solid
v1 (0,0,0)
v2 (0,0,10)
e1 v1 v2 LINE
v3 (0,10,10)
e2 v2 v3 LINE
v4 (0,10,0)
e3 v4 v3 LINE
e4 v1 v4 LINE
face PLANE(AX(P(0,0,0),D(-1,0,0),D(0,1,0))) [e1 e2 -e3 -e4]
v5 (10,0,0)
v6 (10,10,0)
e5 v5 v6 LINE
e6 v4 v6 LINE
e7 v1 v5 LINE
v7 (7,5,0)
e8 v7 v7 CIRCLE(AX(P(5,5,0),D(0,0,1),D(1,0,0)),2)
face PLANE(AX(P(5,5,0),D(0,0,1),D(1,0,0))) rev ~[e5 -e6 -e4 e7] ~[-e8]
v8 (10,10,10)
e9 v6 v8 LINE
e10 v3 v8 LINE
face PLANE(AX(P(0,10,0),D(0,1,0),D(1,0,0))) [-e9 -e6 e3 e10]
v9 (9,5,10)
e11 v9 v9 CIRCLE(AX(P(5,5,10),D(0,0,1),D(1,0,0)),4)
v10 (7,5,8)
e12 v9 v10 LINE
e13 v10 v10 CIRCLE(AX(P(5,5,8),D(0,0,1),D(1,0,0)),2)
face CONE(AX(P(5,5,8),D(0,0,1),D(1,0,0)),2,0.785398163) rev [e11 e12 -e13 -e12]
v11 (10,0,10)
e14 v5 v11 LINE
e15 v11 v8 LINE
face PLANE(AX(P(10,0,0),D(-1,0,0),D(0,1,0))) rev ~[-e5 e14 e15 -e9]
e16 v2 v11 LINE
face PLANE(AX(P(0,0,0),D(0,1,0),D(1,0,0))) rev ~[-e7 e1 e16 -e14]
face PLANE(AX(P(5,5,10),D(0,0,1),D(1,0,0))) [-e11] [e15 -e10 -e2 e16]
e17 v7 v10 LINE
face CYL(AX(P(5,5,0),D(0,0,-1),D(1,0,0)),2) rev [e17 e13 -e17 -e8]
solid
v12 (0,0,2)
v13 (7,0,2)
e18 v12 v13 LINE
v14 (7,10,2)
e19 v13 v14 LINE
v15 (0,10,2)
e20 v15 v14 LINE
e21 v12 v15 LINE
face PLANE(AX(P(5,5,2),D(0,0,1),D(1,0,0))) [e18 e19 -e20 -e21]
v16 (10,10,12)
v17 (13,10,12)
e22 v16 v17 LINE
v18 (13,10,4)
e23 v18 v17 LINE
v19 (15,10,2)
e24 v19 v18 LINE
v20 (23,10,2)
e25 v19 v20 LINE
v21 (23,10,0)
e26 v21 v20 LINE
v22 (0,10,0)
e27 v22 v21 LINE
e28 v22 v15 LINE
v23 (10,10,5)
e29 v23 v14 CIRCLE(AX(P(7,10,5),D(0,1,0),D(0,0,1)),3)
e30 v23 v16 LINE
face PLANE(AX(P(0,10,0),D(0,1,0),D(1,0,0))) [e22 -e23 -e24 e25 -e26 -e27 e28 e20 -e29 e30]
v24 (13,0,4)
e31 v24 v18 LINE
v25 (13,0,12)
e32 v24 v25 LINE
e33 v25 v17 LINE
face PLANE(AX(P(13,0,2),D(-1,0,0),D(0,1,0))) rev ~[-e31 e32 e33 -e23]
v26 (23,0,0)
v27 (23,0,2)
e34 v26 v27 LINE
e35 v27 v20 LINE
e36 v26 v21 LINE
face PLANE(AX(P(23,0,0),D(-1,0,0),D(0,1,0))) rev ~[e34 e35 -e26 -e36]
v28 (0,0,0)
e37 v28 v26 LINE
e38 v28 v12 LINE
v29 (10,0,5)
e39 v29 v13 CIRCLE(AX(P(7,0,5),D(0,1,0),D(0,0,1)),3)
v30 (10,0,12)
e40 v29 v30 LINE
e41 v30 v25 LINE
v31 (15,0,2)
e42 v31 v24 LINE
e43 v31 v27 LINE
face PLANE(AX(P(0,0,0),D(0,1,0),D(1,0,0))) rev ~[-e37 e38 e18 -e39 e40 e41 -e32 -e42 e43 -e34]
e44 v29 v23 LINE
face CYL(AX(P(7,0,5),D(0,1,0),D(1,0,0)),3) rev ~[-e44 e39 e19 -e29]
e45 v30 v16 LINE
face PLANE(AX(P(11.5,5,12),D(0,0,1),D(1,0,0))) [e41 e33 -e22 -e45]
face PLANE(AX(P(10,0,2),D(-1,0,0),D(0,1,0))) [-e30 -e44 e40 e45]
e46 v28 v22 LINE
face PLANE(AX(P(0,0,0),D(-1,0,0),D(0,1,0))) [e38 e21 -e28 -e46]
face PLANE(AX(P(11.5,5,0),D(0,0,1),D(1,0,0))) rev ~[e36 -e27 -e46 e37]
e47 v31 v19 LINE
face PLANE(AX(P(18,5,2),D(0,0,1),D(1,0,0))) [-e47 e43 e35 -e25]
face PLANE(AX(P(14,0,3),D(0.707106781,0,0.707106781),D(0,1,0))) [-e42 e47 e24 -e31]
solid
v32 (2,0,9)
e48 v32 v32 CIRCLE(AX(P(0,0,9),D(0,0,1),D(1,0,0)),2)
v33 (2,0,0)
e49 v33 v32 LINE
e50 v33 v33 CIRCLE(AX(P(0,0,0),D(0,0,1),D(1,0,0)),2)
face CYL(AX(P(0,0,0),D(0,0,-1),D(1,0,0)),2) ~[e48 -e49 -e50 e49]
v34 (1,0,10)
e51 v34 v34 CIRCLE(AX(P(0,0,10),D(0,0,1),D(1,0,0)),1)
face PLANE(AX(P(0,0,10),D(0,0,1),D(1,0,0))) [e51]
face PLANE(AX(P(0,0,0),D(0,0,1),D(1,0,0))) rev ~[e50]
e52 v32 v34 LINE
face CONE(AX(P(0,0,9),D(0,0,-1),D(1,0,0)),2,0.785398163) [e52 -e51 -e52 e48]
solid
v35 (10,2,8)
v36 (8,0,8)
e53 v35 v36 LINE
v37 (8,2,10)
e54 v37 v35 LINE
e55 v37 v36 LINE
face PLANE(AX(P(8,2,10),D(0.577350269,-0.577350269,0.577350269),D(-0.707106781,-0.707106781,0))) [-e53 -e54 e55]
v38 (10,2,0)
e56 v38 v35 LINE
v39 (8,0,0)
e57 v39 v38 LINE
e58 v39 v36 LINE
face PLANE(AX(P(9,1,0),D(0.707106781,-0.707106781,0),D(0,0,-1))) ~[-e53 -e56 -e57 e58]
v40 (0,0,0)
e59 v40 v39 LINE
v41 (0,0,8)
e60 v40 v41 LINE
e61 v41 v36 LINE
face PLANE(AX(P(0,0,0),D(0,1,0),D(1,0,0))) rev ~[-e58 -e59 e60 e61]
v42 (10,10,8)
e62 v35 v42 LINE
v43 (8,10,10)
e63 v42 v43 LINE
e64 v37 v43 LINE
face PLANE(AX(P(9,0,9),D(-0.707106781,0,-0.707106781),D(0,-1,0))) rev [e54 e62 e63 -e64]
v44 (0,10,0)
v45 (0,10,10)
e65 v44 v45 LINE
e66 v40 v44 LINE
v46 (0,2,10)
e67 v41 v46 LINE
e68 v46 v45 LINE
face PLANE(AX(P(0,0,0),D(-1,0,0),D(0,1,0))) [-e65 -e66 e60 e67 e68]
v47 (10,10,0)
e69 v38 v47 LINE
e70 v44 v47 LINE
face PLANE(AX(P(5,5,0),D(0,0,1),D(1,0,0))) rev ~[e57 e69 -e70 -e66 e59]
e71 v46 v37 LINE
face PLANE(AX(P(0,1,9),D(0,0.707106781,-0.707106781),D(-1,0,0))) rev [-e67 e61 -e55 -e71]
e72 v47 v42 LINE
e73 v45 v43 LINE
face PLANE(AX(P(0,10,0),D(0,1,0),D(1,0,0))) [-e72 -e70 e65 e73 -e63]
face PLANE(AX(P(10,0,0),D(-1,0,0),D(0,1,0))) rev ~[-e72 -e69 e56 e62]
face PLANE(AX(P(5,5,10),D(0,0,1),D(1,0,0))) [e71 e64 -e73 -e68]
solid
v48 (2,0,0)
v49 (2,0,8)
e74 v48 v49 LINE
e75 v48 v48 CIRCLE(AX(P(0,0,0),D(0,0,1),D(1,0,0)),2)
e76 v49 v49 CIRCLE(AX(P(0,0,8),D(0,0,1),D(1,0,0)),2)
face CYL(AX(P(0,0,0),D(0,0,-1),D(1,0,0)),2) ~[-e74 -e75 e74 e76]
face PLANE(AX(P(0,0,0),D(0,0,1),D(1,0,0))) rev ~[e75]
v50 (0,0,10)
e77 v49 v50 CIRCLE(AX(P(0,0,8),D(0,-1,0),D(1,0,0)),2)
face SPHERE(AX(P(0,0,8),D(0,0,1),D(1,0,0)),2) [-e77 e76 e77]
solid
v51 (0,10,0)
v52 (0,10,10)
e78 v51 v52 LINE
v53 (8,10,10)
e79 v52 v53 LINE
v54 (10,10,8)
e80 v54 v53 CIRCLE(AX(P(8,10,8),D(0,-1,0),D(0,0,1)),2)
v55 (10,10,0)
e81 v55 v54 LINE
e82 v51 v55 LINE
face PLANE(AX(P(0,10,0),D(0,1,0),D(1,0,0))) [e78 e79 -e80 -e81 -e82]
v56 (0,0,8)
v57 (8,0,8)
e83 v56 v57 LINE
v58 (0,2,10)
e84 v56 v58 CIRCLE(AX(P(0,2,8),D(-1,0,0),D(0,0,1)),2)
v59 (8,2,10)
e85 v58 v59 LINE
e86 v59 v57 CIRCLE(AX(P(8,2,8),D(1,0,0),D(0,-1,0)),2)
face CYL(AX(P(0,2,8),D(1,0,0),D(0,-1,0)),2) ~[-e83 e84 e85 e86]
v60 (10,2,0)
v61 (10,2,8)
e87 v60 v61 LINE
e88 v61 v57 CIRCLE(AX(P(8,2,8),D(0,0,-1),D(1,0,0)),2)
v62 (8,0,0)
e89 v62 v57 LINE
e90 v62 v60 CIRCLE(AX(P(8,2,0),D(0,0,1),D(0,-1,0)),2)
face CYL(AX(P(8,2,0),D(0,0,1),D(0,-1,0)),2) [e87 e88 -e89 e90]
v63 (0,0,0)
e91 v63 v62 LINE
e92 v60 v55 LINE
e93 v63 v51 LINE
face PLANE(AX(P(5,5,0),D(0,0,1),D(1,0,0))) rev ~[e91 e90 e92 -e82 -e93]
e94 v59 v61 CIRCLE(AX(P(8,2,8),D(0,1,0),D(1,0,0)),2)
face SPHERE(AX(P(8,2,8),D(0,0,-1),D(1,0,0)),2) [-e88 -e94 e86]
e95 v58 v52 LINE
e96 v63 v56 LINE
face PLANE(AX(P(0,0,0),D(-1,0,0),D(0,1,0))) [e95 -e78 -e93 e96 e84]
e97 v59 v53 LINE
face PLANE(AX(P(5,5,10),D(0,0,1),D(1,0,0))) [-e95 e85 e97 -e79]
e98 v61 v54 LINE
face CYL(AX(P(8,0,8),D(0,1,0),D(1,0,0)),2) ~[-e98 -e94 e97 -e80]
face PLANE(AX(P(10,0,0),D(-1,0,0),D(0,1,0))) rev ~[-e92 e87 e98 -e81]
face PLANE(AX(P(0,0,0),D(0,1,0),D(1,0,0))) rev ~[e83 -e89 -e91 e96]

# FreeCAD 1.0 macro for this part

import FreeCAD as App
import Part
import Sketcher
from FreeCAD import Vector
Q = App.Units.Quantity


def edges_at(feature, points):
    """Names of the edges that pass closest to the given points."""
    edges = feature.Shape.Edges
    near = lambda p: min(range(len(edges)), key=lambda i: edges[i].distToShape(Part.Vertex(*p))[0])
    return sorted({f"Edge{near(p) + 1}" for p in points})

doc = App.newDocument("Part")
body = doc.addObject("PartDesign::Body", "Body")

# Sketch on XY plane
sketch1 = body.newObject("Sketcher::SketchObject", "Sketch")
sketch1.AttachmentSupport = (doc.getObject("XY_Plane"), [""])
sketch1.MapMode = "FlatFace"
sketch1.addGeometry([
    Part.LineSegment(Vector(0, 10, 0), Vector(0, 0, 0)),
    Part.LineSegment(Vector(0, 0, 0), Vector(10, 0, 0)),
    Part.LineSegment(Vector(10, 0, 0), Vector(10, 10, 0)),
    Part.LineSegment(Vector(10, 10, 0), Vector(0, 10, 0)),
], False)
sketch1.addConstraint([
    Sketcher.Constraint("Coincident", 0, 2, 1, 1),
    Sketcher.Constraint("Coincident", 1, 2, 2, 1),
    Sketcher.Constraint("Coincident", 2, 2, 3, 1),
    Sketcher.Constraint("Coincident", 3, 2, 0, 1),
    Sketcher.Constraint("Vertical", 0),
    Sketcher.Constraint("Horizontal", 1),
    Sketcher.Constraint("Vertical", 2),
    Sketcher.Constraint("Horizontal", 3),
    Sketcher.Constraint("Coincident", 0, 2, -1, 1),
    Sketcher.Constraint("Equal", 3, 0),
    Sketcher.Constraint("DistanceX", 1, 1, 1, 2, Q("10 mm")),
])
pad1 = body.newObject("PartDesign::Pad", "Pad")
pad1.Profile = sketch1
pad1.Length = 10
doc.recompute()

fillet = body.newObject("PartDesign::Fillet", "Fillet")
fillet.Base = (pad1, edges_at(pad1, [(10, 0, 5), (10, 5, 10), (5, 0, 10)]))
fillet.Radius = 2
body2 = doc.addObject("PartDesign::Body", "Body001")

# Sketch on XY plane
sketch2 = body2.newObject("Sketcher::SketchObject", "Sketch001")
sketch2.AttachmentSupport = (doc.getObject("XY_Plane001"), [""])
sketch2.MapMode = "FlatFace"
sketch2.addGeometry([
    Part.LineSegment(Vector(0, 10, 0), Vector(0, 0, 0)),
    Part.LineSegment(Vector(0, 0, 0), Vector(10, 0, 0)),
    Part.LineSegment(Vector(10, 0, 0), Vector(10, 10, 0)),
    Part.LineSegment(Vector(10, 10, 0), Vector(0, 10, 0)),
], False)
sketch2.addConstraint([
    Sketcher.Constraint("Coincident", 0, 2, 1, 1),
    Sketcher.Constraint("Coincident", 1, 2, 2, 1),
    Sketcher.Constraint("Coincident", 2, 2, 3, 1),
    Sketcher.Constraint("Coincident", 3, 2, 0, 1),
    Sketcher.Constraint("Vertical", 0),
    Sketcher.Constraint("Horizontal", 1),
    Sketcher.Constraint("Vertical", 2),
    Sketcher.Constraint("Horizontal", 3),
    Sketcher.Constraint("Coincident", 0, 2, -1, 1),
    Sketcher.Constraint("Equal", 3, 0),
    Sketcher.Constraint("DistanceX", 1, 1, 1, 2, Q("10 mm")),
])
pad2 = body2.newObject("PartDesign::Pad", "Pad001")
pad2.Profile = sketch2
pad2.Length = 10
doc.recompute()

chamfer = body2.newObject("PartDesign::Chamfer", "Chamfer")
chamfer.Base = (pad2, edges_at(pad2, [(10, 0, 5), (10, 5, 10), (5, 0, 10)]))
chamfer.Size = 2
body3 = doc.addObject("PartDesign::Body", "Body002")

# Sketch on XY plane
sketch3 = body3.newObject("Sketcher::SketchObject", "Sketch002")
sketch3.AttachmentSupport = (doc.getObject("XY_Plane002"), [""])
sketch3.MapMode = "FlatFace"
sketch3.addGeometry(Part.Circle(Vector(5, 5, 0), Vector(0, 0, 1), 2), False)
sketch3.addConstraint([
    Sketcher.Constraint("Diameter", 0, Q("4 mm")),
    Sketcher.Constraint("DistanceX", -1, 1, 0, 3, Q("5 mm")),
    Sketcher.Constraint("DistanceY", -1, 1, 0, 3, Q("5 mm")),
])
pad3 = body3.newObject("PartDesign::Pad", "Pad002")
pad3.Profile = sketch3
pad3.Length = 10
body4 = doc.addObject("PartDesign::Body", "Body003")

# Sketch on XY plane
sketch4 = body4.newObject("Sketcher::SketchObject", "Sketch003")
sketch4.AttachmentSupport = (doc.getObject("XY_Plane003"), [""])
sketch4.MapMode = "FlatFace"
sketch4.addGeometry([
    Part.LineSegment(Vector(0, 10, 0), Vector(0, 0, 0)),
    Part.LineSegment(Vector(0, 0, 0), Vector(10, 0, 0)),
    Part.LineSegment(Vector(10, 0, 0), Vector(10, 10, 0)),
    Part.LineSegment(Vector(10, 10, 0), Vector(0, 10, 0)),
], False)
sketch4.addConstraint([
    Sketcher.Constraint("Coincident", 0, 2, 1, 1),
    Sketcher.Constraint("Coincident", 1, 2, 2, 1),
    Sketcher.Constraint("Coincident", 2, 2, 3, 1),
    Sketcher.Constraint("Coincident", 3, 2, 0, 1),
    Sketcher.Constraint("Vertical", 0),
    Sketcher.Constraint("Horizontal", 1),
    Sketcher.Constraint("Vertical", 2),
    Sketcher.Constraint("Horizontal", 3),
    Sketcher.Constraint("Coincident", 0, 2, -1, 1),
    Sketcher.Constraint("Equal", 3, 0),
    Sketcher.Constraint("DistanceX", 1, 1, 1, 2, Q("10 mm")),
])
pad4 = body4.newObject("PartDesign::Pad", "Pad003")
pad4.Profile = sketch4
pad4.Length = 10
doc.recompute()

boolean = body4.newObject("PartDesign::Boolean", "Boolean")
boolean.Type = "Cut"
boolean.addObjects([body3])
doc.recompute()

chamfer2 = body4.newObject("PartDesign::Chamfer", "Chamfer001")
chamfer2.Base = (boolean, edges_at(boolean, [(3, 5, 10)]))
chamfer2.Size = 2
body5 = doc.addObject("PartDesign::Body", "Body004")

# Sketch on XY plane
sketch5 = body5.newObject("Sketcher::SketchObject", "Sketch004")
sketch5.AttachmentSupport = (doc.getObject("XY_Plane004"), [""])
sketch5.MapMode = "FlatFace"
sketch5.addGeometry(Part.Circle(Vector(0, 0, 0), Vector(0, 0, 1), 2), False)
sketch5.addConstraint([
    Sketcher.Constraint("Coincident", 0, 3, -1, 1),
    Sketcher.Constraint("Diameter", 0, Q("4 mm")),
])
pad5 = body5.newObject("PartDesign::Pad", "Pad004")
pad5.Profile = sketch5
pad5.Length = 10
doc.recompute()

fillet2 = body5.newObject("PartDesign::Fillet", "Fillet001")
fillet2.Base = (pad5, edges_at(pad5, [(-2, 0, 10)]))
fillet2.Radius = 2
body6 = doc.addObject("PartDesign::Body", "Body005")

# Sketch on XY plane
sketch6 = body6.newObject("Sketcher::SketchObject", "Sketch005")
sketch6.AttachmentSupport = (doc.getObject("XY_Plane005"), [""])
sketch6.MapMode = "FlatFace"
sketch6.addGeometry(Part.Circle(Vector(0, 0, 0), Vector(0, 0, 1), 2), False)
sketch6.addConstraint([
    Sketcher.Constraint("Coincident", 0, 3, -1, 1),
    Sketcher.Constraint("Diameter", 0, Q("4 mm")),
])
pad6 = body6.newObject("PartDesign::Pad", "Pad005")
pad6.Profile = sketch6
pad6.Length = 10
doc.recompute()

chamfer3 = body6.newObject("PartDesign::Chamfer", "Chamfer002")
chamfer3.Base = (pad6, edges_at(pad6, [(-2, 0, 10)]))
chamfer3.Size = 1
body7 = doc.addObject("PartDesign::Body", "Body006")

# Sketch on XY plane
sketch7 = body7.newObject("Sketcher::SketchObject", "Sketch006")
sketch7.AttachmentSupport = (doc.getObject("XY_Plane006"), [""])
sketch7.MapMode = "FlatFace"
sketch7.AttachmentOffset = App.Placement(Vector(0, 0, 2), App.Rotation())
sketch7.addGeometry([
    Part.LineSegment(Vector(13, 10, 0), Vector(13, 0, 0)),
    Part.LineSegment(Vector(13, 0, 0), Vector(23, 0, 0)),
    Part.LineSegment(Vector(23, 0, 0), Vector(23, 10, 0)),
    Part.LineSegment(Vector(23, 10, 0), Vector(13, 10, 0)),
], False)
sketch7.addConstraint([
    Sketcher.Constraint("Coincident", 0, 2, 1, 1),
    Sketcher.Constraint("Coincident", 1, 2, 2, 1),
    Sketcher.Constraint("Coincident", 2, 2, 3, 1),
    Sketcher.Constraint("Coincident", 3, 2, 0, 1),
    Sketcher.Constraint("Vertical", 0),
    Sketcher.Constraint("Horizontal", 1),
    Sketcher.Constraint("Vertical", 2),
    Sketcher.Constraint("Horizontal", 3),
    Sketcher.Constraint("PointOnObject", 0, 2, -1),
    Sketcher.Constraint("Equal", 3, 0),
    Sketcher.Constraint("DistanceX", 1, 1, 1, 2, Q("10 mm")),
    Sketcher.Constraint("DistanceX", -1, 1, 0, 2, Q("13 mm")),
])
pad7 = body7.newObject("PartDesign::Pad", "Pad006")
pad7.Profile = sketch7
pad7.Length = 10
body8 = doc.addObject("PartDesign::Body", "Body007")
body8.AllowCompound = True

# Sketch on XY plane
sketch8 = body8.newObject("Sketcher::SketchObject", "Sketch007")
sketch8.AttachmentSupport = (doc.getObject("XY_Plane007"), [""])
sketch8.MapMode = "FlatFace"
sketch8.AttachmentOffset = App.Placement(Vector(0, 0, 2), App.Rotation())
sketch8.addGeometry([
    Part.LineSegment(Vector(0, 10, 0), Vector(0, 0, 0)),
    Part.LineSegment(Vector(0, 0, 0), Vector(10, 0, 0)),
    Part.LineSegment(Vector(10, 0, 0), Vector(10, 10, 0)),
    Part.LineSegment(Vector(10, 10, 0), Vector(0, 10, 0)),
], False)
sketch8.addConstraint([
    Sketcher.Constraint("Coincident", 0, 2, 1, 1),
    Sketcher.Constraint("Coincident", 1, 2, 2, 1),
    Sketcher.Constraint("Coincident", 2, 2, 3, 1),
    Sketcher.Constraint("Coincident", 3, 2, 0, 1),
    Sketcher.Constraint("Vertical", 0),
    Sketcher.Constraint("Horizontal", 1),
    Sketcher.Constraint("Vertical", 2),
    Sketcher.Constraint("Horizontal", 3),
    Sketcher.Constraint("Coincident", 0, 2, -1, 1),
    Sketcher.Constraint("Equal", 3, 0),
    Sketcher.Constraint("DistanceX", 1, 1, 1, 2, Q("10 mm")),
])
pad8 = body8.newObject("PartDesign::Pad", "Pad007")
pad8.Profile = sketch8
pad8.Length = 10
doc.recompute()

boolean2 = body8.newObject("PartDesign::Boolean", "Boolean001")
boolean2.Type = "Fuse"
boolean2.addObjects([body7])
body9 = doc.addObject("PartDesign::Body", "Body008")

# Sketch on XY plane
sketch9 = body9.newObject("Sketcher::SketchObject", "Sketch008")
sketch9.AttachmentSupport = (doc.getObject("XY_Plane008"), [""])
sketch9.MapMode = "FlatFace"
sketch9.addGeometry([
    Part.LineSegment(Vector(0, 10, 0), Vector(0, 0, 0)),
    Part.LineSegment(Vector(0, 0, 0), Vector(23, 0, 0)),
    Part.LineSegment(Vector(23, 0, 0), Vector(23, 10, 0)),
    Part.LineSegment(Vector(23, 10, 0), Vector(0, 10, 0)),
], False)
sketch9.addConstraint([
    Sketcher.Constraint("Coincident", 0, 2, 1, 1),
    Sketcher.Constraint("Coincident", 1, 2, 2, 1),
    Sketcher.Constraint("Coincident", 2, 2, 3, 1),
    Sketcher.Constraint("Coincident", 3, 2, 0, 1),
    Sketcher.Constraint("Vertical", 0),
    Sketcher.Constraint("Horizontal", 1),
    Sketcher.Constraint("Vertical", 2),
    Sketcher.Constraint("Horizontal", 3),
    Sketcher.Constraint("Coincident", 0, 2, -1, 1),
    Sketcher.Constraint("DistanceX", 1, 1, 1, 2, Q("23 mm")),
    Sketcher.Constraint("DistanceY", 0, 2, 0, 1, Q("10 mm")),
])
pad9 = body9.newObject("PartDesign::Pad", "Pad008")
pad9.Profile = sketch9
pad9.Length = 12
doc.recompute()

boolean3 = body9.newObject("PartDesign::Boolean", "Boolean002")
boolean3.Type = "Cut"
boolean3.addObjects([body8])
doc.recompute()

chamfer4 = body9.newObject("PartDesign::Chamfer", "Chamfer003")
chamfer4.Base = (boolean3, edges_at(boolean3, [(13, 5, 2)]))
chamfer4.Size = 2
doc.recompute()

fillet3 = body9.newObject("PartDesign::Fillet", "Fillet002")
fillet3.Base = (chamfer4, edges_at(chamfer4, [(10, 5, 2)]))
fillet3.Radius = 3

doc.recompute()
